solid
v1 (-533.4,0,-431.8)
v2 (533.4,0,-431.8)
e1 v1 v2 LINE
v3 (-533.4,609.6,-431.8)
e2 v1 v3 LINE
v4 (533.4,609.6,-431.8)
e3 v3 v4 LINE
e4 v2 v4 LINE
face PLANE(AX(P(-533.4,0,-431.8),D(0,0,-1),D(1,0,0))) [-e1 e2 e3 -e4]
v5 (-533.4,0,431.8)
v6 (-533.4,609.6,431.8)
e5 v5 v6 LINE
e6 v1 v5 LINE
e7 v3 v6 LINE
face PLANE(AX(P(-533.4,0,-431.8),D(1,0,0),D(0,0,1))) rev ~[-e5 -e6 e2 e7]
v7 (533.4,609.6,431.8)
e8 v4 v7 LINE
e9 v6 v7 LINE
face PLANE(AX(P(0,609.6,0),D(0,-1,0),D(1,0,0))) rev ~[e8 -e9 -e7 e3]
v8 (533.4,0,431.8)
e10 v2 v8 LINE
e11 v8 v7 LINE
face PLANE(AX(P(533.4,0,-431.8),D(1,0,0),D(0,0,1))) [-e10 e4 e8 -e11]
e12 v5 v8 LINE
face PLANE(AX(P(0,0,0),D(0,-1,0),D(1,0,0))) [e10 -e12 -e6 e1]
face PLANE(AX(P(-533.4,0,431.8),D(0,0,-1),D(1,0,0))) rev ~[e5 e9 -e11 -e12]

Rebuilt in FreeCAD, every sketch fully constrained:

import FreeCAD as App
import Part
import Sketcher
Q = App.Units.Quantity

doc = App.newDocument("Part")
body = doc.addObject("PartDesign::Body", "Body")

# Sketch on XZ plane
sketch1 = doc.addObject("Sketcher::SketchObject", "Sketch")
body.addObject(sketch1)
sketch1.AttachmentSupport = (doc.XZ_Plane, [""])
sketch1.MapMode = "FlatFace"
sketch1.addGeometry(Part.LineSegment(App.Vector(-533.4, 431.8, 0), App.Vector(-533.4, -431.8, 0)), False)
sketch1.addGeometry(Part.LineSegment(App.Vector(-533.4, -431.8, 0), App.Vector(533.4, -431.8, 0)), False)
sketch1.addGeometry(Part.LineSegment(App.Vector(533.4, -431.8, 0), App.Vector(533.4, 431.8, 0)), False)
sketch1.addGeometry(Part.LineSegment(App.Vector(533.4, 431.8, 0), App.Vector(-533.4, 431.8, 0)), False)
sketch1.addConstraint(Sketcher.Constraint("Coincident", 0, 2, 1, 1))
sketch1.addConstraint(Sketcher.Constraint("Coincident", 1, 2, 2, 1))
sketch1.addConstraint(Sketcher.Constraint("Coincident", 2, 2, 3, 1))
sketch1.addConstraint(Sketcher.Constraint("Coincident", 3, 2, 0, 1))
sketch1.addConstraint(Sketcher.Constraint("Vertical", 0))
sketch1.addConstraint(Sketcher.Constraint("Horizontal", 1))
sketch1.addConstraint(Sketcher.Constraint("Vertical", 2))
sketch1.addConstraint(Sketcher.Constraint("Horizontal", 3))
sketch1.addConstraint(Sketcher.Constraint("Symmetric", 0, 2, 2, 2, -1, 1))
sketch1.addConstraint(Sketcher.Constraint("DistanceX", 1, 1, 1, 2, Q("42 in")))
sketch1.addConstraint(Sketcher.Constraint("DistanceY", 0, 2, 0, 1, Q("34 in")))
pad1 = doc.addObject("PartDesign::Pad", "Pad")
body.addObject(pad1)
pad1.Profile = sketch1
pad1.Length = Q("24 in")
pad1.Reversed = True
body2 = doc.addObject("PartDesign::Body", "Body001")

# Sketch on XZ plane
sketch2 = doc.addObject("Sketcher::SketchObject", "Sketch001")
body2.addObject(sketch2)
sketch2.AttachmentSupport = (doc.getObject("XZ_Plane001"), [""])
sketch2.MapMode = "FlatFace"
sketch2.addGeometry(Part.LineSegment(App.Vector(533.400001, 0, 0), App.Vector(533.400001, -83.061278, 0)), False)
sketch2.addGeometry(Part.LineSegment(App.Vector(533.400001, -83.061278, 0), App.Vector(609.107138, -83.061278, 0)), False)
sketch2.addGeometry(Part.LineSegment(App.Vector(609.107138, -83.061278, 0), App.Vector(609.107138, 0, 0)), False)
sketch2.addGeometry(Part.LineSegment(App.Vector(609.107138, 0, 0), App.Vector(533.400001, 0, 0)), False)
sketch2.addConstraint(Sketcher.Constraint("Coincident", 0, 2, 1, 1))
sketch2.addConstraint(Sketcher.Constraint("Coincident", 1, 2, 2, 1))
sketch2.addConstraint(Sketcher.Constraint("Coincident", 2, 2, 3, 1))
sketch2.addConstraint(Sketcher.Constraint("Coincident", 3, 2, 0, 1))
sketch2.addConstraint(Sketcher.Constraint("Vertical", 0))
sketch2.addConstraint(Sketcher.Constraint("Horizontal", 1))
sketch2.addConstraint(Sketcher.Constraint("Vertical", 2))
sketch2.addConstraint(Sketcher.Constraint("Horizontal", 3))
sketch2.addConstraint(Sketcher.Constraint("PointOnObject", 2, 2, -1))
sketch2.addConstraint(Sketcher.Constraint("DistanceX", -1, 1, 0, 2, Q("21 in")))
sketch2.addConstraint(Sketcher.Constraint("DistanceY", 0, 2, 0, 1, 83.061278))
sketch2.addConstraint(Sketcher.Constraint("DistanceX", 1, 1, 1, 2, 75.707137))
pad2 = doc.addObject("PartDesign::Pad", "Pad001")
body2.addObject(pad2)
pad2.Profile = sketch2
pad2.Length = Q("1 in")
body2.Visibility = False

doc.recompute()
